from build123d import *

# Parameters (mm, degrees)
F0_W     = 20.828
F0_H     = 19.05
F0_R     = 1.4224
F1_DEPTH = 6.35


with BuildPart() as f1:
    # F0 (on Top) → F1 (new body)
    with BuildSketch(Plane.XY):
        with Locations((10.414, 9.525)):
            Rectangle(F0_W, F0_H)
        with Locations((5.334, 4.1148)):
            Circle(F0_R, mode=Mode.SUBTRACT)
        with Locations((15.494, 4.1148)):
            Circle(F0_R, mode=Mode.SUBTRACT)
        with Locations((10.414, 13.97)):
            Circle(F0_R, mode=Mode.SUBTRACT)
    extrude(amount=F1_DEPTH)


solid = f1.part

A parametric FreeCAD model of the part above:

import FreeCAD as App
import Part
import Sketcher

V = App.Vector
Q = App.Units.Quantity


def add_polygon(sketch, points):
    """Adds a closed chain of lines whose ends are joined by coincident constraints."""
    first, n = sketch.GeometryCount, len(points)
    for a, b in zip(points, points[1:] + points[:1]):
        sketch.addGeometry(Part.LineSegment(App.Vector(*a, 0), App.Vector(*b, 0)), False)
    for i in range(n):
        sketch.addConstraint(Sketcher.Constraint("Coincident", first + i, 2, first + (i + 1) % n, 1))

doc = App.newDocument("Part")
body = doc.addObject("PartDesign::Body", "Body")

# Sketch on XY plane
sketch1 = body.newObject("Sketcher::SketchObject", "Sketch")
sketch1.AttachmentSupport = (doc.getObject("XY_Plane"), [""])
sketch1.MapMode = "FlatFace"
add_polygon(sketch1, [(0, 19.05), (0, 0), (20.828, 0), (20.828, 19.05)])  # lines 0-3
sketch1.addGeometry(Part.Circle(V(5.334, 4.1148, 0), V(0, 0, 1), 1.4224), False)  # 4
sketch1.addGeometry(Part.Circle(V(15.494, 4.1148, 0), V(0, 0, 1), 1.4224), False)  # 5
sketch1.addGeometry(Part.Circle(V(10.414, 13.97, 0), V(0, 0, 1), 1.4224), False)  # 6
sketch1.addConstraint([
    Sketcher.Constraint("Vertical", 0),
    Sketcher.Constraint("Horizontal", 1),
    Sketcher.Constraint("Vertical", 2),
    Sketcher.Constraint("Horizontal", 3),
    Sketcher.Constraint("Coincident", 0, 2, -1, 1),
    Sketcher.Constraint("Equal", 4, 5),
    Sketcher.Constraint("Equal", 5, 6),
    Sketcher.Constraint("Horizontal", 4, 3, 5, 3),
    Sketcher.Constraint("Diameter", 4, Q("0.112 in")),
    Sketcher.Constraint("DistanceX", 1, 1, 1, 2, Q("0.82 in")),
    Sketcher.Constraint("DistanceY", 0, 2, 0, 1, Q("0.75 in")),
    Sketcher.Constraint("DistanceX", 4, 3, 5, 3, Q("0.4 in")),
    Sketcher.Constraint("DistanceX", 4, 3, 6, 3, Q("0.2 in")),
    Sketcher.Constraint("DistanceY", 6, 3, 2, 2, Q("0.2 in")),
    Sketcher.Constraint("DistanceX", -1, 1, 4, 3, Q("0.21 in")),
    Sketcher.Constraint("DistanceY", -1, 1, 4, 3, Q("0.162 in")),
])
pad1 = body.newObject("PartDesign::Pad", "Pad")
pad1.Profile = sketch1
pad1.Length = Q("0.25 in")

doc.recompute()
